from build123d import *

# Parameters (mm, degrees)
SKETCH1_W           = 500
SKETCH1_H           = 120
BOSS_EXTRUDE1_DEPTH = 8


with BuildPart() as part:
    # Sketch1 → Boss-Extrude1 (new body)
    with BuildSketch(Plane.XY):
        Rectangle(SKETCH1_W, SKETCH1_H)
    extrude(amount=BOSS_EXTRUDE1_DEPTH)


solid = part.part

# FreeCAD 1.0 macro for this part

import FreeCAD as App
import Part
import Sketcher
from FreeCAD import Vector

doc = App.newDocument("Part")
body = doc.addObject("PartDesign::Body", "Body")

# Sketch on XY plane
sketch1 = body.newObject("Sketcher::SketchObject", "Sketch")
sketch1.AttachmentSupport = (doc.getObject("XY_Plane"), [""])
sketch1.MapMode = "FlatFace"
sketch1.addGeometry([
    Part.LineSegment(Vector(-250, 60, 0), Vector(-250, -60, 0)),
    Part.LineSegment(Vector(-250, -60, 0), Vector(250, -60, 0)),
    Part.LineSegment(Vector(250, -60, 0), Vector(250, 60, 0)),
    Part.LineSegment(Vector(250, 60, 0), Vector(-250, 60, 0)),
], False)
sketch1.addConstraint([
    Sketcher.Constraint("Coincident", 0, 2, 1, 1),
    Sketcher.Constraint("Coincident", 1, 2, 2, 1),
    Sketcher.Constraint("Coincident", 2, 2, 3, 1),
    Sketcher.Constraint("Coincident", 3, 2, 0, 1),
    Sketcher.Constraint("Vertical", 0),
    Sketcher.Constraint("Horizontal", 1),
    Sketcher.Constraint("Vertical", 2),
    Sketcher.Constraint("Horizontal", 3),
    Sketcher.Constraint("Symmetric", 0, 2, 2, 2, -1, 1),
    Sketcher.Constraint("DistanceX", 1, 1, 1, 2, 500.0),
    Sketcher.Constraint("DistanceY", 0, 2, 0, 1, 120.0),
])
pad1 = body.newObject("PartDesign::Pad", "Pad")
pad1.Profile = sketch1
pad1.Length = 8

doc.recompute()
